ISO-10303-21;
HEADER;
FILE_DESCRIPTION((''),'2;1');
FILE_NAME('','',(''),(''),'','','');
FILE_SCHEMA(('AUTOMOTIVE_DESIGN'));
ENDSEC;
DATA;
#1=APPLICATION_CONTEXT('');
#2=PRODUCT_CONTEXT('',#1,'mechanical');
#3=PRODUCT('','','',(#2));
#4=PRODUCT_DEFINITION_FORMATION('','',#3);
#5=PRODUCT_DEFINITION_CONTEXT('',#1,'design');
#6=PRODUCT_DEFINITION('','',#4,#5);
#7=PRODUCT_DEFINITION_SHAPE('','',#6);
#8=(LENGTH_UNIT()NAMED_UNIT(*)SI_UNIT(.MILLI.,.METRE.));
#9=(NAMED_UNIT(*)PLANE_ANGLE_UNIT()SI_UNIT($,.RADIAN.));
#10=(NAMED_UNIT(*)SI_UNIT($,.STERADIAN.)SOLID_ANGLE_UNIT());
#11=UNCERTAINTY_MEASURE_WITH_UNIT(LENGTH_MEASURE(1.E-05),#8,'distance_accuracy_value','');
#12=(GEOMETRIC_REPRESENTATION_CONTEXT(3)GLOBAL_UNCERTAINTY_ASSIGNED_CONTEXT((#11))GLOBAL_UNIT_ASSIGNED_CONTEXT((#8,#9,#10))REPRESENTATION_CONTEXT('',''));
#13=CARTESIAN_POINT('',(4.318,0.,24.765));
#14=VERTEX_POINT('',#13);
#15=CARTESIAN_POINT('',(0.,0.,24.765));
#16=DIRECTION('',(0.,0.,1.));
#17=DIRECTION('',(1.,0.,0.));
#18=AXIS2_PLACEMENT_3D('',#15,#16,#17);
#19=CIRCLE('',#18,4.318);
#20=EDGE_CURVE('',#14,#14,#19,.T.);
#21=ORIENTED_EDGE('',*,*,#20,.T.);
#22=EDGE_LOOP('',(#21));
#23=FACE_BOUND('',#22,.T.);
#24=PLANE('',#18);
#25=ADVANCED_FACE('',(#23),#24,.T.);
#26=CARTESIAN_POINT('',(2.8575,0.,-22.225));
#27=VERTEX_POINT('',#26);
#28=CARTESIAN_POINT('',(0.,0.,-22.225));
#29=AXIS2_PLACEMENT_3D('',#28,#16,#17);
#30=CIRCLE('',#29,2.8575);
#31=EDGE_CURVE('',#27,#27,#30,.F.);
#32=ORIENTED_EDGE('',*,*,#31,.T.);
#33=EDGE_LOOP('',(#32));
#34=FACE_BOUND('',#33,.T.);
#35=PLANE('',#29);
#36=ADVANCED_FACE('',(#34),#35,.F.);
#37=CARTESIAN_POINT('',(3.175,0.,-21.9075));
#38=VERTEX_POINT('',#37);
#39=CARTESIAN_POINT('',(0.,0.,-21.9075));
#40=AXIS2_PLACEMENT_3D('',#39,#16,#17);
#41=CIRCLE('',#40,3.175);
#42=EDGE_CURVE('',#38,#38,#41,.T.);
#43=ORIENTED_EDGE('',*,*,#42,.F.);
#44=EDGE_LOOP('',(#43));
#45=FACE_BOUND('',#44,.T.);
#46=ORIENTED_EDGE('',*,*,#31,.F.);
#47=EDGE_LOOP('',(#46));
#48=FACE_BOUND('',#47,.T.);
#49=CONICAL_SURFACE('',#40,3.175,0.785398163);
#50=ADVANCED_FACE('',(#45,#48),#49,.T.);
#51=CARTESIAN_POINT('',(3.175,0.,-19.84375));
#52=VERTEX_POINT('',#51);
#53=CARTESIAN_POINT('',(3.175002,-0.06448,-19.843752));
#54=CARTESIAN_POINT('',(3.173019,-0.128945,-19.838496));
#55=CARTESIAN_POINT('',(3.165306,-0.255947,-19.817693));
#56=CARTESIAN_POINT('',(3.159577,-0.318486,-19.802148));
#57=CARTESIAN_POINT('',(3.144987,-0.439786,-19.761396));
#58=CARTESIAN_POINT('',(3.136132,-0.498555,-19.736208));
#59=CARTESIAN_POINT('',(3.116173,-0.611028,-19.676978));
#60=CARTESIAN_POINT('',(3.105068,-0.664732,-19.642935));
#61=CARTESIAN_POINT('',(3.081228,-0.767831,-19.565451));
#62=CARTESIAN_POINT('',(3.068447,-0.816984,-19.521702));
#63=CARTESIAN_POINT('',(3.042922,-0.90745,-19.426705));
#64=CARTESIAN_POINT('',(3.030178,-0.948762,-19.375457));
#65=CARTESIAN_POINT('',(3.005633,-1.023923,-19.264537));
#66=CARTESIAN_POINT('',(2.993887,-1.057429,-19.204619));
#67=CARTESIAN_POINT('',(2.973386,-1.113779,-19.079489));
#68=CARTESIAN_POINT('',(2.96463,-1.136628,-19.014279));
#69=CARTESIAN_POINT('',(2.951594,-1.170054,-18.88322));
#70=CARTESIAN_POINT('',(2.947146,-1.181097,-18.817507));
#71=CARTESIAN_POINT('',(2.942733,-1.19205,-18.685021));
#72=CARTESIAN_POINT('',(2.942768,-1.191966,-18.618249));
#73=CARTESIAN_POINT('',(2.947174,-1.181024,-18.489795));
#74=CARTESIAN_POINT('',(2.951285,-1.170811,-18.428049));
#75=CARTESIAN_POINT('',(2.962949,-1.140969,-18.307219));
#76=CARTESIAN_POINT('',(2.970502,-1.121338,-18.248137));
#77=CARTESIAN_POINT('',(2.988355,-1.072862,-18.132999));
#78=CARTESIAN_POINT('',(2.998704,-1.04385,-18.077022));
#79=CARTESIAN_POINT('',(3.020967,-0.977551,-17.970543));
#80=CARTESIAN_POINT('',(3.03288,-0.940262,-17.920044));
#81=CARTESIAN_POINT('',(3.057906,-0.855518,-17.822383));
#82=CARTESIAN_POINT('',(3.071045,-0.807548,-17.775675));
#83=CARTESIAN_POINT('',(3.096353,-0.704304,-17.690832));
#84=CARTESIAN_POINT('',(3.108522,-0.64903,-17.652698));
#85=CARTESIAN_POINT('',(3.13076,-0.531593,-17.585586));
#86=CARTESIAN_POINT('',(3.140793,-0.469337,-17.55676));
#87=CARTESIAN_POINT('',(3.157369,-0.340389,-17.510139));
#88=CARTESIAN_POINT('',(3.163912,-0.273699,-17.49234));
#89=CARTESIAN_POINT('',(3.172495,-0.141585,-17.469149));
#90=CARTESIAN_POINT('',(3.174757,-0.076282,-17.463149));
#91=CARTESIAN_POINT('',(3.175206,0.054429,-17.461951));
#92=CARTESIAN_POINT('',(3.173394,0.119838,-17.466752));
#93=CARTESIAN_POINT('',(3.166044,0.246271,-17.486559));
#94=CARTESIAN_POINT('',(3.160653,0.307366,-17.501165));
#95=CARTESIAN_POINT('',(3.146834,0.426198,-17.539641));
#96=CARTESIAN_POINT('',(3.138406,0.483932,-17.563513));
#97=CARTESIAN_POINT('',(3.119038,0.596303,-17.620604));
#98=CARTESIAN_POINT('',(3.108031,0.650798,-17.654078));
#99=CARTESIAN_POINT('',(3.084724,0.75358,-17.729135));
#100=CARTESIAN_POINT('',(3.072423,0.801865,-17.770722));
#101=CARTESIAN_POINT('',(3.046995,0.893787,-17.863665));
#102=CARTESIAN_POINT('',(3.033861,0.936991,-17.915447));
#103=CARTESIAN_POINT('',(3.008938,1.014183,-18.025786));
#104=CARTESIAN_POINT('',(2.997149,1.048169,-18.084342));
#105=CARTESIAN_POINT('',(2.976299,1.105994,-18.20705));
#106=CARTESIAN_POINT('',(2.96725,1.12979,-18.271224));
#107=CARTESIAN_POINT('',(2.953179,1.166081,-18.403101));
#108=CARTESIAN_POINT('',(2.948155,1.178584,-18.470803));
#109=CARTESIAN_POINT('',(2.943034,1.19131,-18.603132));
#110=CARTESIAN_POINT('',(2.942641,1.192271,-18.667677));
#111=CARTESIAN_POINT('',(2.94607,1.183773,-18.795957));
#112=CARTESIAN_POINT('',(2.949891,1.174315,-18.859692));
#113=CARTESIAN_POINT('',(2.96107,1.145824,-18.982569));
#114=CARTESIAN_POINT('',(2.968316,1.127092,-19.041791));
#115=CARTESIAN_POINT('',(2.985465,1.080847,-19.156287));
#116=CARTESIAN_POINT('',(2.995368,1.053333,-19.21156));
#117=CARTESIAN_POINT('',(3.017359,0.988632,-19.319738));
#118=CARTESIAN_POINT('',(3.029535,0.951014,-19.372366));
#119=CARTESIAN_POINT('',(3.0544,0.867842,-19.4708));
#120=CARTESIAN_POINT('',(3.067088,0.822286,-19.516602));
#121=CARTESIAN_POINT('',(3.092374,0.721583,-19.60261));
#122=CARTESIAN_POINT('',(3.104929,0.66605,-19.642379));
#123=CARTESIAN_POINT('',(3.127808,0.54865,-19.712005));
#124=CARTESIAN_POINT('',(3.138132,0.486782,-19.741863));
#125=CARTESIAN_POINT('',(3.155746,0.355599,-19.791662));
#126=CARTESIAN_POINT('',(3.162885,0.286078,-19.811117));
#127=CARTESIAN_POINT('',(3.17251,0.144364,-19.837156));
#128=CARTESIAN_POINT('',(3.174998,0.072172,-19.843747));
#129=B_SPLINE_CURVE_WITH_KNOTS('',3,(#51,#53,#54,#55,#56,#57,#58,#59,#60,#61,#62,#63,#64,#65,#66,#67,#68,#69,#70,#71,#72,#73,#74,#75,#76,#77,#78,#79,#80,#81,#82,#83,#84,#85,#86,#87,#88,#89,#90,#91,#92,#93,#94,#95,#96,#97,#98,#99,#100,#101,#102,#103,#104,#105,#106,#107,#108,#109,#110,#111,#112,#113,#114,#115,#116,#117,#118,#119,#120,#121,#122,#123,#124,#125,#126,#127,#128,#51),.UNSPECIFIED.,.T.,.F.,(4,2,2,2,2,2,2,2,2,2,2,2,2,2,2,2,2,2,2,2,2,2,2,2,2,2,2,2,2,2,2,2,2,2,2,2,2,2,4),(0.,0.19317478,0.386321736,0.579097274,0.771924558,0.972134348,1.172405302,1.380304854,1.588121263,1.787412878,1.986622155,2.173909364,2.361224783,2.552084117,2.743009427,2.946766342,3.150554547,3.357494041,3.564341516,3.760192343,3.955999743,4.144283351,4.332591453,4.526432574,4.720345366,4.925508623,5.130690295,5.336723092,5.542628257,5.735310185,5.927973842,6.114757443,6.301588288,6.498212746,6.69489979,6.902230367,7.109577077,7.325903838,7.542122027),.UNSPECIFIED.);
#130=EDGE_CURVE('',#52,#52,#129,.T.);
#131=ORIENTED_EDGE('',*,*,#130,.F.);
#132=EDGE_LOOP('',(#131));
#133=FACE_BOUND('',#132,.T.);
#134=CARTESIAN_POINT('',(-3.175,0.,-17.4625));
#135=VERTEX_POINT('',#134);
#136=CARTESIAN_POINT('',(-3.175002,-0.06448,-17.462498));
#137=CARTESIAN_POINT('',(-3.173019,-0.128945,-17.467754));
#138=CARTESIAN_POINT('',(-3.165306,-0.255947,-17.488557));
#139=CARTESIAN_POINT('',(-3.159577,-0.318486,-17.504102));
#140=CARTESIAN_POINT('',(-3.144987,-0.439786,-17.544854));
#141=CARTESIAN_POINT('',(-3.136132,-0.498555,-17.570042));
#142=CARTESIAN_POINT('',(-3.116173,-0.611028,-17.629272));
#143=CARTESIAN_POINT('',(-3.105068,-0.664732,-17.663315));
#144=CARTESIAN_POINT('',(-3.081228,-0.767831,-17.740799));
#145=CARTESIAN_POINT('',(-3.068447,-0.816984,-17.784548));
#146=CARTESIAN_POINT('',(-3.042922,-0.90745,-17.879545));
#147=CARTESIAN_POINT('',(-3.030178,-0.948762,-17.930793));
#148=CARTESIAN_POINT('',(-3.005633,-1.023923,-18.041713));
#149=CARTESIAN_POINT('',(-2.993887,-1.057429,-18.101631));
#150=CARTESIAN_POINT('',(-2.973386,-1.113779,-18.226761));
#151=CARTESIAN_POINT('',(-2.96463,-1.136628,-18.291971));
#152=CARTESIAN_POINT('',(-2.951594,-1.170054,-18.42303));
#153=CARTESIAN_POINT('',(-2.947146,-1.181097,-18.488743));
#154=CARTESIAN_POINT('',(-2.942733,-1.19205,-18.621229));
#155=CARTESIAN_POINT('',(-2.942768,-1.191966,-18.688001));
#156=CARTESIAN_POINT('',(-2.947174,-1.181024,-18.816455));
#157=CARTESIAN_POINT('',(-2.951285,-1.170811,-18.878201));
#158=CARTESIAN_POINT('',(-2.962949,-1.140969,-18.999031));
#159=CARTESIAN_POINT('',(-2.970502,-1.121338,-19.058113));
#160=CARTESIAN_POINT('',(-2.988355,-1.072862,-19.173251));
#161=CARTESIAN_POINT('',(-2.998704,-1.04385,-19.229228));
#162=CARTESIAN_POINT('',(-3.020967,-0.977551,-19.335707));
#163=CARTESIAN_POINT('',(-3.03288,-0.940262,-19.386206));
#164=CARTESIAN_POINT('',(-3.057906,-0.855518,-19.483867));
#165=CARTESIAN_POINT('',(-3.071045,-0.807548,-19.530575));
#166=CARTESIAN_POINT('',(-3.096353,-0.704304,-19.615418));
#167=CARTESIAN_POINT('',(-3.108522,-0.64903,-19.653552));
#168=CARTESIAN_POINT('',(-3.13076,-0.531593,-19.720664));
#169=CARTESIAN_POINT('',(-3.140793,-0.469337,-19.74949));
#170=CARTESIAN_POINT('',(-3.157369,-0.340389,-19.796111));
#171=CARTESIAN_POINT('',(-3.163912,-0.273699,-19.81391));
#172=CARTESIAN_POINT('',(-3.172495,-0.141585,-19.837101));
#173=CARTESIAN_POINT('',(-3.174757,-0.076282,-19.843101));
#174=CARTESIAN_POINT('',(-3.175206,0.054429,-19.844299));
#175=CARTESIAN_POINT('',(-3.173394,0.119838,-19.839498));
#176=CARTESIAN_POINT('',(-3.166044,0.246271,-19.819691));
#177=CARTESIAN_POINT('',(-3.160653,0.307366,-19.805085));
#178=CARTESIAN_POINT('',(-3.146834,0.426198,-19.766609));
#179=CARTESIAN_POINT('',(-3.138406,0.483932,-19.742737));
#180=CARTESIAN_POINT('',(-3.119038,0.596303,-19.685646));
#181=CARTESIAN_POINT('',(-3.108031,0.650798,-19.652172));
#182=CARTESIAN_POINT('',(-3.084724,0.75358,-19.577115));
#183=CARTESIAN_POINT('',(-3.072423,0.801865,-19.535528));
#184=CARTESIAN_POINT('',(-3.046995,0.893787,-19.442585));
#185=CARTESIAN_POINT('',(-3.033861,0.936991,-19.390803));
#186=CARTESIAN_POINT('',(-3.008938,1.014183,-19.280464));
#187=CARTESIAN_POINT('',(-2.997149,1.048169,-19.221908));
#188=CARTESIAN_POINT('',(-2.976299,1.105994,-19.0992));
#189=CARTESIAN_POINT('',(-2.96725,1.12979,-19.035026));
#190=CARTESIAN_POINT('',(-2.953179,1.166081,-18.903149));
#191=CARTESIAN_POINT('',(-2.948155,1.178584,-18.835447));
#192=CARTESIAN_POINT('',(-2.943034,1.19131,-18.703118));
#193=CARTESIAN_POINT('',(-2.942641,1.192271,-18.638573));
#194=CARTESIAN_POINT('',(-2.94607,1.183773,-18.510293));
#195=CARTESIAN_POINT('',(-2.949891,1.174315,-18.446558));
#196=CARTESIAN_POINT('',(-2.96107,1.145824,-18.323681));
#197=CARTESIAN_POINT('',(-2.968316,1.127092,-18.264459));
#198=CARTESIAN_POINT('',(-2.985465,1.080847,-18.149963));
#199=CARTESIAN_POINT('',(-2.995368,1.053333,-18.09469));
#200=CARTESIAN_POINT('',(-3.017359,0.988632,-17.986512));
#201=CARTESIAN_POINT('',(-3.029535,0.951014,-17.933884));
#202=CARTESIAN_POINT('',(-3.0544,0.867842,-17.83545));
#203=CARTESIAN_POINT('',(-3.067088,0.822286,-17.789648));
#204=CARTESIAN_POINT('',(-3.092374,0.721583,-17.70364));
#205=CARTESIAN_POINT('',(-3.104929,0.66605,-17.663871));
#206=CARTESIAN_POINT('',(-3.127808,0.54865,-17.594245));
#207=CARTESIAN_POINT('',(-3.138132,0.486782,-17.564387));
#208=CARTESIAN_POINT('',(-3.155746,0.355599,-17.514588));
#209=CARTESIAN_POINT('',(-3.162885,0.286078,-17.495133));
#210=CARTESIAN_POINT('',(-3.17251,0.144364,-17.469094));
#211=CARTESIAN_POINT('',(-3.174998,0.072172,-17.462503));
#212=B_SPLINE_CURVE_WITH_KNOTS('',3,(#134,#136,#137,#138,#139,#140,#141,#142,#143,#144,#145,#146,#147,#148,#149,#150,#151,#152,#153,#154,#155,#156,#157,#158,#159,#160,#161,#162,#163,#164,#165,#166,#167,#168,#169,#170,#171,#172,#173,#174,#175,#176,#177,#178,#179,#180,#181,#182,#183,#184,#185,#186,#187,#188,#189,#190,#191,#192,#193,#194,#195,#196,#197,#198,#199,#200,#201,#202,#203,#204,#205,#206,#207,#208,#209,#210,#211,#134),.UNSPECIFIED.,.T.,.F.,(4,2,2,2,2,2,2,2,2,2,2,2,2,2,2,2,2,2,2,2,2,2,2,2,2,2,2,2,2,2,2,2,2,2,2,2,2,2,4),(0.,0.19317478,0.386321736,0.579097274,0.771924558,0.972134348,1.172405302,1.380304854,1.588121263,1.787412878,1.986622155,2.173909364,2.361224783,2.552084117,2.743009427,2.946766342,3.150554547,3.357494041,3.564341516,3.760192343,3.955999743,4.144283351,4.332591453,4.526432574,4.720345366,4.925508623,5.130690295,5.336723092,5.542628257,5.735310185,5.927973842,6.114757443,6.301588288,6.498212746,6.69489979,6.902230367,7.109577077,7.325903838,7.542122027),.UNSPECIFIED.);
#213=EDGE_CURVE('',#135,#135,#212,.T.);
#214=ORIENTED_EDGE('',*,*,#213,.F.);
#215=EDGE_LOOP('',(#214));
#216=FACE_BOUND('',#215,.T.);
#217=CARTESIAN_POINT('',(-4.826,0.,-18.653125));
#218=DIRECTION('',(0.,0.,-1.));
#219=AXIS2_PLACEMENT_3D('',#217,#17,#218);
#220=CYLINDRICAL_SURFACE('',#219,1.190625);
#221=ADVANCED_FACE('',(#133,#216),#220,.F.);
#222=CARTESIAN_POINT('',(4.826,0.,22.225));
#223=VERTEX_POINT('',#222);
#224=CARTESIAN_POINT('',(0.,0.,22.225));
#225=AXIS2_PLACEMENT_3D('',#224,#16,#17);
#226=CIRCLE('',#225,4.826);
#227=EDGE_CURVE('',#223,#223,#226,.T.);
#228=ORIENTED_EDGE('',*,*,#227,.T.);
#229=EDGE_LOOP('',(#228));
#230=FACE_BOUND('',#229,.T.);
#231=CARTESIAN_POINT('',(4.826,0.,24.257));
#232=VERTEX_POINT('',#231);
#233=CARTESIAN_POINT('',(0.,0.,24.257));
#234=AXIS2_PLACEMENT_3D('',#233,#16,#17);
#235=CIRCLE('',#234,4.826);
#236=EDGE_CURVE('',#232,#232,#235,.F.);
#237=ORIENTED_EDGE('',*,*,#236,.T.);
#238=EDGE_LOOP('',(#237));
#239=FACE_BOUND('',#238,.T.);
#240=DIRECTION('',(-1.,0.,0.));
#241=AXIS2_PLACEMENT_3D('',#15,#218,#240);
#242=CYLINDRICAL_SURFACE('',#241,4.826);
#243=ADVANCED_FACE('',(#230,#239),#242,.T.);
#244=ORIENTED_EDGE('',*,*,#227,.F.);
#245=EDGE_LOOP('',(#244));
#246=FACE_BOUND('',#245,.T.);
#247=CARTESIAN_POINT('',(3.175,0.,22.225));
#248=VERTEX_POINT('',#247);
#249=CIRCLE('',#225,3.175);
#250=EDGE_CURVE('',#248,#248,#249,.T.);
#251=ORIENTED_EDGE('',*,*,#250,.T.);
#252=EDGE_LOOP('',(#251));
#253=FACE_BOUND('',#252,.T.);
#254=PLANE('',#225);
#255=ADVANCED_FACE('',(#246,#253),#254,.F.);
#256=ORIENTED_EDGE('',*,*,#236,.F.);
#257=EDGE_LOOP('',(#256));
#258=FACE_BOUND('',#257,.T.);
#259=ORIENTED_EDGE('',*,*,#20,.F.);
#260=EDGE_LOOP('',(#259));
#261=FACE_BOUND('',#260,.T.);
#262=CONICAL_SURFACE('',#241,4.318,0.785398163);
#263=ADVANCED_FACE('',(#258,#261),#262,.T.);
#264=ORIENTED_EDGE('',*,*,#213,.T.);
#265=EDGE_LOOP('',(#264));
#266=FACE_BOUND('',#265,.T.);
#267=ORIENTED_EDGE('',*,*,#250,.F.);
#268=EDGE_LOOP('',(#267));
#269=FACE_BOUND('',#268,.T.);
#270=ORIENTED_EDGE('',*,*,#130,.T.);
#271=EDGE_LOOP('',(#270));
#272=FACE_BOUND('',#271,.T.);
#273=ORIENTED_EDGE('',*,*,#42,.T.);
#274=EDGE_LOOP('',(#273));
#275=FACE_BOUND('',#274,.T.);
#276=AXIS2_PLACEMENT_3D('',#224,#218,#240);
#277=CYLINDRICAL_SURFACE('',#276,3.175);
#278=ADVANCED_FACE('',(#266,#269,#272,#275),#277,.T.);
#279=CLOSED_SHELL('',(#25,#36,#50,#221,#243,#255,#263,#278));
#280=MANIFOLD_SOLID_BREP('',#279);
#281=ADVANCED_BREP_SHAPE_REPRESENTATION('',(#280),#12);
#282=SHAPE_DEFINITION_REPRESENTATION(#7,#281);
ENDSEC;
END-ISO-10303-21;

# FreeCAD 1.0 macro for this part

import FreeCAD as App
import Part
import Sketcher
Q = App.Units.Quantity


def edges_at(feature, points):
    """Names of the edges that pass closest to the given points."""
    edges = feature.Shape.Edges
    near = lambda p: min(range(len(edges)), key=lambda i: edges[i].distToShape(Part.Vertex(*p))[0])
    return sorted({f"Edge{near(p) + 1}" for p in points})

doc = App.newDocument("Part")
params = doc.addObject("Spreadsheet::Sheet", "Params")
for row, (alias, value) in enumerate([
    ("sketch1_diameter", "0.25 in"),
    ("pad1_length", "1.75 in"),
    ("sketch2_diameter", "0.38 in"),
    ("pad2_length", "0.1 in"),
    ("chamfer_size", "0.02 in"),
    ("sketch3_diameter", "0.09375 in"),
    ("chamfer2_size", "0.0125 in"),
], start=1):
    params.set(f"A{row}", alias)
    params.set(f"B{row}", "=" + value)
    params.setAlias(f"B{row}", alias)

body = doc.addObject("PartDesign::Body", "Body")

sketch1 = body.newObject("Sketcher::SketchObject", "Sketch")
sketch1.AttachmentSupport = (doc.getObject("XY_Plane"), [""])
sketch1.MapMode = "FlatFace"
sketch1.addGeometry(Part.Circle(App.Vector(0, 0, 0), App.Vector(0, 0, 1), 3.2), False)
sketch1.addConstraint(Sketcher.Constraint("Coincident", 0, 3, -1, 1))
sketch1.addConstraint(Sketcher.Constraint("Diameter", 0, Q("0.25 in")))
sketch1.setExpression("Constraints[1]", "Params.sketch1_diameter")
pad1 = body.newObject("PartDesign::Pad", "Pad")
pad1.Profile = sketch1
pad1.setExpression("Length", "Params.pad1_length")
pad1.Midplane = True

sketch2 = body.newObject("Sketcher::SketchObject", "Sketch001")
sketch2.AttachmentSupport = (doc.getObject("XY_Plane"), [""])
sketch2.MapMode = "FlatFace"
sketch2.AttachmentOffset = App.Placement(App.Vector(0, 0, 0.875 * 25.4), App.Rotation())
sketch2.addGeometry(Part.Circle(App.Vector(0, 0, 0), App.Vector(0, 0, 1), 4.8), False)
sketch2.addConstraint(Sketcher.Constraint("Coincident", 0, 3, -1, 1))
sketch2.addConstraint(Sketcher.Constraint("Diameter", 0, Q("0.38 in")))
sketch2.setExpression("Constraints[1]", "Params.sketch2_diameter")
pad2 = body.newObject("PartDesign::Pad", "Pad001")
pad2.Profile = sketch2
pad2.setExpression("Length", "Params.pad2_length")
doc.recompute()

chamfer = body.newObject("PartDesign::Chamfer", "Chamfer")
chamfer.Base = (pad2, edges_at(pad2, [(-4.826, 0, 24.765)]))
chamfer.setExpression("Size", "Params.chamfer_size")

sketch3 = body.newObject("Sketcher::SketchObject", "Sketch002")
sketch3.AttachmentSupport = (doc.getObject("YZ_Plane"), [""])
sketch3.MapMode = "FlatFace"
sketch3.addGeometry(Part.Circle(App.Vector(0, -18.7, 0), App.Vector(0, 0, 1), 1.2), False)
sketch3.addConstraint(Sketcher.Constraint("PointOnObject", 0, 3, -2))
sketch3.addConstraint(Sketcher.Constraint("Diameter", 0, Q("0.09375 in")))
sketch3.addConstraint(Sketcher.Constraint("DistanceY", 0, 3, -1, 1, Q("0.734375 in")))
sketch3.setExpression("Constraints[1]", "Params.sketch3_diameter")
pocket1 = body.newObject("PartDesign::Pocket", "Pocket")
pocket1.Profile = sketch3
pocket1.Type = "ThroughAll"
pocket1.Midplane = True
doc.recompute()

chamfer2 = body.newObject("PartDesign::Chamfer", "Chamfer001")
chamfer2.Base = (pocket1, edges_at(pocket1, [(-3.175, 0, -22.225)]))
chamfer2.setExpression("Size", "Params.chamfer2_size")

doc.recompute()
